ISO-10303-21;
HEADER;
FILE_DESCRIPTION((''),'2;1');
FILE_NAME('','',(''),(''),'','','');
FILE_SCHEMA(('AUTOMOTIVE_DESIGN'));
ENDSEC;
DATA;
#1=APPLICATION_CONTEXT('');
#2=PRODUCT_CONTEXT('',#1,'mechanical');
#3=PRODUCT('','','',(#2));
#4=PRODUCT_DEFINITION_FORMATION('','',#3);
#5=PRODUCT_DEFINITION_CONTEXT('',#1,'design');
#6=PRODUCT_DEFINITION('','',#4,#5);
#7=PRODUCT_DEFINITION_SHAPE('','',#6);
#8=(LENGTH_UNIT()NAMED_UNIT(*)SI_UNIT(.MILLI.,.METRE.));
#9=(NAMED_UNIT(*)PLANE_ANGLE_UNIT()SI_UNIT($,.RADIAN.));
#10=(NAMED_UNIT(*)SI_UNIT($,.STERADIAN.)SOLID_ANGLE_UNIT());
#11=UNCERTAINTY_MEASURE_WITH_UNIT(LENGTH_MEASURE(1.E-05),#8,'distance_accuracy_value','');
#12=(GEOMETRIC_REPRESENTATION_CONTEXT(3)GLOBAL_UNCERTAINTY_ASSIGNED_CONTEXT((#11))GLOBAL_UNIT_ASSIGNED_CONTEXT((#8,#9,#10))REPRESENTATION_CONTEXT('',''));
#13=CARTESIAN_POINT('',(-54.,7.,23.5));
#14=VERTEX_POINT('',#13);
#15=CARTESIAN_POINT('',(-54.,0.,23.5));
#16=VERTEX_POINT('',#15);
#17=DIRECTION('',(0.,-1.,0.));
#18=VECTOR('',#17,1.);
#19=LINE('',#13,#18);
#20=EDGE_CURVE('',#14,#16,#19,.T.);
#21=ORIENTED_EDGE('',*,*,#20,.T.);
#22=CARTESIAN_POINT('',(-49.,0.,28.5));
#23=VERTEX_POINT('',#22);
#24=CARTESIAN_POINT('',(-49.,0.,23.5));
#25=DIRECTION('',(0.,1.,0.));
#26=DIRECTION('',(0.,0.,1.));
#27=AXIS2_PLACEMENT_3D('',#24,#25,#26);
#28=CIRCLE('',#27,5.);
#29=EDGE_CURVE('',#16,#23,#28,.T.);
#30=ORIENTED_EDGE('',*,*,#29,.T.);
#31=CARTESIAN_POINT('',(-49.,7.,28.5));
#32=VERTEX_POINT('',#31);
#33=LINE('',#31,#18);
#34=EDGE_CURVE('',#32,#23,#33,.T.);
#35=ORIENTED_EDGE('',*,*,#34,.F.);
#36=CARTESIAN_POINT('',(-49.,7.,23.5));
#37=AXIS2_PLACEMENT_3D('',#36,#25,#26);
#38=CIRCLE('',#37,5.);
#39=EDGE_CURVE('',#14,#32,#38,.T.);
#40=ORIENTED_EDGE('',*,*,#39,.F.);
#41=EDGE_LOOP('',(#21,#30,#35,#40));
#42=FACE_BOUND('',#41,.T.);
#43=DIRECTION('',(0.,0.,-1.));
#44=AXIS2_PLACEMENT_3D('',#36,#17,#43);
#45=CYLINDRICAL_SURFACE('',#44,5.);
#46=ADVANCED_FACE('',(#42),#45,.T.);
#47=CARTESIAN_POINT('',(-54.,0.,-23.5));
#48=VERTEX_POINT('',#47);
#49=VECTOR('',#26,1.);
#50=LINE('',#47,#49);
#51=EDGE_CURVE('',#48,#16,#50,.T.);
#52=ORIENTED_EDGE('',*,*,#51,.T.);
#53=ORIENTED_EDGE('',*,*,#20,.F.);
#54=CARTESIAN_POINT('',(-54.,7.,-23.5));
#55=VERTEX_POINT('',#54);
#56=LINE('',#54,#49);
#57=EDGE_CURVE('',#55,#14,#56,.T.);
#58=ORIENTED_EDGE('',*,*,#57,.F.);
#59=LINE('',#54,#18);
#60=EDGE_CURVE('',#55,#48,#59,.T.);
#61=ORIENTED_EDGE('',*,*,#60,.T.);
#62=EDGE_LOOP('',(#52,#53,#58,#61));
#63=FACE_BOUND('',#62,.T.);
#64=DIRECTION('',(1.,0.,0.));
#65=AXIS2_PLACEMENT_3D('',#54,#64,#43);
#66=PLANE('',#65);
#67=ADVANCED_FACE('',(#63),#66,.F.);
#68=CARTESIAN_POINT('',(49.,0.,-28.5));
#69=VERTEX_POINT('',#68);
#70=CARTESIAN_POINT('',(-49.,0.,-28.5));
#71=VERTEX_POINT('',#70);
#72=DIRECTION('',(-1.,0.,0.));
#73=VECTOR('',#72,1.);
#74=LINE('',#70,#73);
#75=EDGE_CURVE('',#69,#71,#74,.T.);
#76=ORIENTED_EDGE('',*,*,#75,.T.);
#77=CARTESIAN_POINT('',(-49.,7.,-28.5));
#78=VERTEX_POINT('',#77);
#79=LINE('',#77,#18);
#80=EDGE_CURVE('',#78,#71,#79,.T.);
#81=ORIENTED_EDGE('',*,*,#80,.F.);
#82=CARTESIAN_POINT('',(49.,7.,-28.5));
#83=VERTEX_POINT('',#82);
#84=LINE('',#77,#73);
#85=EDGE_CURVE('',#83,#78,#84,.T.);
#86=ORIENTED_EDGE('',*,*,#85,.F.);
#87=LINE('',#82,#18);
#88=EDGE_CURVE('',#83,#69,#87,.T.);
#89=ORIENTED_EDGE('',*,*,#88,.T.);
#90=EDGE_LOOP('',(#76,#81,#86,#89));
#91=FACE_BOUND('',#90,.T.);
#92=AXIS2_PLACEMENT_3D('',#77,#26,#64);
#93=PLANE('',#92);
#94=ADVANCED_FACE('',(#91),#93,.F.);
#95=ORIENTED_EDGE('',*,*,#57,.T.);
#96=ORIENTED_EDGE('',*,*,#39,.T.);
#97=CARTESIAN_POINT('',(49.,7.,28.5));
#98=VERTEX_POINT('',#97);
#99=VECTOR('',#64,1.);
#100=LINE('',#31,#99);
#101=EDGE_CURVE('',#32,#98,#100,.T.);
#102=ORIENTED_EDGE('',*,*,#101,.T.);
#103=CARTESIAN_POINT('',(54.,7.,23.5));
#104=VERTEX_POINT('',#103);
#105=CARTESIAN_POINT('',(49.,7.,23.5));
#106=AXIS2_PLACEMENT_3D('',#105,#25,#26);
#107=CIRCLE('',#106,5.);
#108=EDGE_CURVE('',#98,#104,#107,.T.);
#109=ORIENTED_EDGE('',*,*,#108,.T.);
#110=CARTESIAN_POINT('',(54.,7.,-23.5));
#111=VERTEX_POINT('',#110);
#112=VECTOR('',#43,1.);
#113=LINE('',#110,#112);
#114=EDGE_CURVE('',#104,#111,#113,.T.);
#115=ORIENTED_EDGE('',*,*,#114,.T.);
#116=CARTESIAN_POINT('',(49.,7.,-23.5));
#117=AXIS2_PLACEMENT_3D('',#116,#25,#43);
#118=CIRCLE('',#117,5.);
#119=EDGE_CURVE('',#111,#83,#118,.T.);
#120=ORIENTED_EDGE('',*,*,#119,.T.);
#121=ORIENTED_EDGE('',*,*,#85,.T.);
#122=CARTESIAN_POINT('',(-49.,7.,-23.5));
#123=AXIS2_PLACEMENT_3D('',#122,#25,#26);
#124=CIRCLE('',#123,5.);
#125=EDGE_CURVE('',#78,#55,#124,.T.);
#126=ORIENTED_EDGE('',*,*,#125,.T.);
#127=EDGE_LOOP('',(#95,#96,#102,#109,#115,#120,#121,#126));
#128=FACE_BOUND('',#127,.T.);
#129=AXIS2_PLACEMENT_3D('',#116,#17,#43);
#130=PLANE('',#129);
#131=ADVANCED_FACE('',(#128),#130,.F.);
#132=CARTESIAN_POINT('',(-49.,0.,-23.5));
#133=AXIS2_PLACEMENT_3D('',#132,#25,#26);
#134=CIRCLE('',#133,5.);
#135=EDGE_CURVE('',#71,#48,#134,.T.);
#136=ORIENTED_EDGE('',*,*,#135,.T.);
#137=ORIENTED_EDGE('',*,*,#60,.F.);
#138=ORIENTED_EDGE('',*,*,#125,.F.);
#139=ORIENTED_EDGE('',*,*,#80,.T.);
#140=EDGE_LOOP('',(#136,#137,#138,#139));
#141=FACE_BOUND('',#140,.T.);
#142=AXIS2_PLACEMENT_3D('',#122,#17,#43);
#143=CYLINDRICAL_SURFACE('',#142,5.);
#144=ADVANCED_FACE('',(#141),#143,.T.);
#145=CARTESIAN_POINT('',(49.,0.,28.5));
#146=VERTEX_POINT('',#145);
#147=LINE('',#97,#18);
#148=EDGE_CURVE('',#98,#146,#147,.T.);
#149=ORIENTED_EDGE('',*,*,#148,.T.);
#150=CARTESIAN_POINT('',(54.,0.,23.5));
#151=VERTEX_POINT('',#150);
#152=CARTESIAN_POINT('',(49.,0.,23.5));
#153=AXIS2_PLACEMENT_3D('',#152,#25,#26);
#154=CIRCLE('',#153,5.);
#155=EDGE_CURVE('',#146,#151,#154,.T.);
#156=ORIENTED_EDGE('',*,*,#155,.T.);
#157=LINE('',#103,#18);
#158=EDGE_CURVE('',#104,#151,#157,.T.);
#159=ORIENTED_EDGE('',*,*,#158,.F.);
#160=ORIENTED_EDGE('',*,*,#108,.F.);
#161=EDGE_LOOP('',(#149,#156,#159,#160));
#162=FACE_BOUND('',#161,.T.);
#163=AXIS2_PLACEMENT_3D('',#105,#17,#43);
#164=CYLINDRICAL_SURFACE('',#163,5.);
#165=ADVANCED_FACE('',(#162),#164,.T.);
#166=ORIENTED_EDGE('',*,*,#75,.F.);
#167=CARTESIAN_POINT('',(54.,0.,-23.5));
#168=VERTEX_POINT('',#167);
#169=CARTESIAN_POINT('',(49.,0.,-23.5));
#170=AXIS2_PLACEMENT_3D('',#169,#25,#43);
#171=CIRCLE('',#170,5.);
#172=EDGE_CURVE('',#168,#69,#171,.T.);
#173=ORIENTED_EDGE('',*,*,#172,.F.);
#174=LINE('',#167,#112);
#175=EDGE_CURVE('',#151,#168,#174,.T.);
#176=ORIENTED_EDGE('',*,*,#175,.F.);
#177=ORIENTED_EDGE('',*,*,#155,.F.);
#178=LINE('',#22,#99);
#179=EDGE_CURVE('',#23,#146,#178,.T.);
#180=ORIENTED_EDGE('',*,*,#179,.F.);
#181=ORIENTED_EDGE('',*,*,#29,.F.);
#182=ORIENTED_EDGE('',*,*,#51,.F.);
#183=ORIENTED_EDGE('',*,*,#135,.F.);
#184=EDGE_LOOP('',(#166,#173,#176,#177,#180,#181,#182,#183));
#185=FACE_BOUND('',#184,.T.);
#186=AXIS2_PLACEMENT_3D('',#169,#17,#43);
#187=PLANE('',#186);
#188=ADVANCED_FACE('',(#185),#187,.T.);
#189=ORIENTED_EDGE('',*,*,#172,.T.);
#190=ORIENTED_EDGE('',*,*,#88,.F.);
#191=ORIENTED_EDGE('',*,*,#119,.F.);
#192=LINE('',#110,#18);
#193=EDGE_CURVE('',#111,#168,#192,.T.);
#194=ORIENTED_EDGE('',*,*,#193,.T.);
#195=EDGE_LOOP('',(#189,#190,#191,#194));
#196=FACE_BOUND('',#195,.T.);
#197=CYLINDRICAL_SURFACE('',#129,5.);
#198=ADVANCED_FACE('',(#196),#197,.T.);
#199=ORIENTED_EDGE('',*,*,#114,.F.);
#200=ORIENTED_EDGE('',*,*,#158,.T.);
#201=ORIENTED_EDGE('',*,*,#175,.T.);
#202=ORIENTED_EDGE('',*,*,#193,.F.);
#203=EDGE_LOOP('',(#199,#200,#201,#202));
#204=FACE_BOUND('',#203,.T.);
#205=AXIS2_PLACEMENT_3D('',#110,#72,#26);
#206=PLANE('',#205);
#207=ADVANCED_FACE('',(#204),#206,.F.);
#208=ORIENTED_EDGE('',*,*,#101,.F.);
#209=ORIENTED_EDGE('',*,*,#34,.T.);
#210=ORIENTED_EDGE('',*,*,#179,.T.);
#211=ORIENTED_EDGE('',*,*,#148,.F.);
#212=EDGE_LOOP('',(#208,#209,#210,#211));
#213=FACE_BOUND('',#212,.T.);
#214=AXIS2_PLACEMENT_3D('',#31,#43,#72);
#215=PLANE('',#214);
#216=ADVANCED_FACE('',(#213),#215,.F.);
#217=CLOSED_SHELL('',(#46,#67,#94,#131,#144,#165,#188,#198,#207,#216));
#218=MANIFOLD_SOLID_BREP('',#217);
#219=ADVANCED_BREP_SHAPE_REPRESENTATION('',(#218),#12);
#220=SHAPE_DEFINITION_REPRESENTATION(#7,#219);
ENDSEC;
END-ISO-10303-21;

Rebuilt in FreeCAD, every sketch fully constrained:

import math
import FreeCAD as App
import Part
import Sketcher

doc = App.newDocument("Part")
params = doc.addObject("Spreadsheet::Sheet", "Params")
for row, (alias, value) in enumerate([
    ("sketch1_radius", "5 mm"),
    ("sketch1_width", "98 mm"),
    ("sketch1_height", "47 mm"),
    ("pad1_length", "7 mm"),
], start=1):
    params.set(f"A{row}", alias)
    params.set(f"B{row}", "=" + value)
    params.setAlias(f"B{row}", alias)

body = doc.addObject("PartDesign::Body", "Body")

# Sketch on XZ plane
sketch1 = body.newObject("Sketcher::SketchObject", "Sketch")
sketch1.AttachmentSupport = (doc.getObject("XZ_Plane"), [""])
sketch1.MapMode = "FlatFace"
sketch1.addGeometry([
    Part.LineSegment(App.Vector(49, -28.5, 0), App.Vector(-49, -28.5, 0)),  # 0
    Part.ArcOfCircle(Part.Circle(App.Vector(-49, -23.5, 0), App.Vector(0, 0, 1), 5), math.radians(180), math.radians(270)),  # 1
    Part.LineSegment(App.Vector(-54, -23.5, 0), App.Vector(-54, 23.5, 0)),  # 2
    Part.ArcOfCircle(Part.Circle(App.Vector(-49, 23.5, 0), App.Vector(0, 0, 1), 5), math.radians(90), math.radians(180)),  # 3
    Part.LineSegment(App.Vector(-49, 28.5, 0), App.Vector(49, 28.5, 0)),  # 4
    Part.ArcOfCircle(Part.Circle(App.Vector(49, 23.5, 0), App.Vector(0, 0, 1), 5), math.radians(0), math.radians(90)),  # 5
    Part.LineSegment(App.Vector(54, 23.5, 0), App.Vector(54, -23.5, 0)),  # 6
    Part.ArcOfCircle(Part.Circle(App.Vector(49, -23.5, 0), App.Vector(0, 0, 1), 5), math.radians(-90), math.radians(0)),  # 7
], False)
sketch1.addConstraint([
    Sketcher.Constraint("Tangent", 0, 2, 1, 2),
    Sketcher.Constraint("Tangent", 1, 1, 2, 1),
    Sketcher.Constraint("Tangent", 2, 2, 3, 2),
    Sketcher.Constraint("Tangent", 3, 1, 4, 1),
    Sketcher.Constraint("Tangent", 4, 2, 5, 2),
    Sketcher.Constraint("Tangent", 5, 1, 6, 1),
    Sketcher.Constraint("Tangent", 6, 2, 7, 2),
    Sketcher.Constraint("Tangent", 7, 1, 0, 1),
    Sketcher.Constraint("Horizontal", 0),
    Sketcher.Constraint("Vertical", 2),
    Sketcher.Constraint("Horizontal", 4),
    Sketcher.Constraint("Vertical", 6),
    Sketcher.Constraint("Equal", 1, 3),
    Sketcher.Constraint("Equal", 3, 5),
    Sketcher.Constraint("Equal", 5, 7),
    Sketcher.Constraint("Symmetric", 1, 3, 5, 3, -1, 1),
    Sketcher.Constraint("Radius", 1, 5.0),
    Sketcher.Constraint("DistanceX", 0, 2, 0, 1, 98.0),
    Sketcher.Constraint("DistanceY", 2, 1, 2, 2, 47.0),
])
sketch1.setExpression("Constraints[16]", "Params.sketch1_radius")
sketch1.setExpression("Constraints[17]", "Params.sketch1_width")
sketch1.setExpression("Constraints[18]", "Params.sketch1_height")
pad1 = body.newObject("PartDesign::Pad", "Pad")
pad1.Profile = sketch1
pad1.setExpression("Length", "Params.pad1_length")
pad1.Reversed = True

doc.recompute()
